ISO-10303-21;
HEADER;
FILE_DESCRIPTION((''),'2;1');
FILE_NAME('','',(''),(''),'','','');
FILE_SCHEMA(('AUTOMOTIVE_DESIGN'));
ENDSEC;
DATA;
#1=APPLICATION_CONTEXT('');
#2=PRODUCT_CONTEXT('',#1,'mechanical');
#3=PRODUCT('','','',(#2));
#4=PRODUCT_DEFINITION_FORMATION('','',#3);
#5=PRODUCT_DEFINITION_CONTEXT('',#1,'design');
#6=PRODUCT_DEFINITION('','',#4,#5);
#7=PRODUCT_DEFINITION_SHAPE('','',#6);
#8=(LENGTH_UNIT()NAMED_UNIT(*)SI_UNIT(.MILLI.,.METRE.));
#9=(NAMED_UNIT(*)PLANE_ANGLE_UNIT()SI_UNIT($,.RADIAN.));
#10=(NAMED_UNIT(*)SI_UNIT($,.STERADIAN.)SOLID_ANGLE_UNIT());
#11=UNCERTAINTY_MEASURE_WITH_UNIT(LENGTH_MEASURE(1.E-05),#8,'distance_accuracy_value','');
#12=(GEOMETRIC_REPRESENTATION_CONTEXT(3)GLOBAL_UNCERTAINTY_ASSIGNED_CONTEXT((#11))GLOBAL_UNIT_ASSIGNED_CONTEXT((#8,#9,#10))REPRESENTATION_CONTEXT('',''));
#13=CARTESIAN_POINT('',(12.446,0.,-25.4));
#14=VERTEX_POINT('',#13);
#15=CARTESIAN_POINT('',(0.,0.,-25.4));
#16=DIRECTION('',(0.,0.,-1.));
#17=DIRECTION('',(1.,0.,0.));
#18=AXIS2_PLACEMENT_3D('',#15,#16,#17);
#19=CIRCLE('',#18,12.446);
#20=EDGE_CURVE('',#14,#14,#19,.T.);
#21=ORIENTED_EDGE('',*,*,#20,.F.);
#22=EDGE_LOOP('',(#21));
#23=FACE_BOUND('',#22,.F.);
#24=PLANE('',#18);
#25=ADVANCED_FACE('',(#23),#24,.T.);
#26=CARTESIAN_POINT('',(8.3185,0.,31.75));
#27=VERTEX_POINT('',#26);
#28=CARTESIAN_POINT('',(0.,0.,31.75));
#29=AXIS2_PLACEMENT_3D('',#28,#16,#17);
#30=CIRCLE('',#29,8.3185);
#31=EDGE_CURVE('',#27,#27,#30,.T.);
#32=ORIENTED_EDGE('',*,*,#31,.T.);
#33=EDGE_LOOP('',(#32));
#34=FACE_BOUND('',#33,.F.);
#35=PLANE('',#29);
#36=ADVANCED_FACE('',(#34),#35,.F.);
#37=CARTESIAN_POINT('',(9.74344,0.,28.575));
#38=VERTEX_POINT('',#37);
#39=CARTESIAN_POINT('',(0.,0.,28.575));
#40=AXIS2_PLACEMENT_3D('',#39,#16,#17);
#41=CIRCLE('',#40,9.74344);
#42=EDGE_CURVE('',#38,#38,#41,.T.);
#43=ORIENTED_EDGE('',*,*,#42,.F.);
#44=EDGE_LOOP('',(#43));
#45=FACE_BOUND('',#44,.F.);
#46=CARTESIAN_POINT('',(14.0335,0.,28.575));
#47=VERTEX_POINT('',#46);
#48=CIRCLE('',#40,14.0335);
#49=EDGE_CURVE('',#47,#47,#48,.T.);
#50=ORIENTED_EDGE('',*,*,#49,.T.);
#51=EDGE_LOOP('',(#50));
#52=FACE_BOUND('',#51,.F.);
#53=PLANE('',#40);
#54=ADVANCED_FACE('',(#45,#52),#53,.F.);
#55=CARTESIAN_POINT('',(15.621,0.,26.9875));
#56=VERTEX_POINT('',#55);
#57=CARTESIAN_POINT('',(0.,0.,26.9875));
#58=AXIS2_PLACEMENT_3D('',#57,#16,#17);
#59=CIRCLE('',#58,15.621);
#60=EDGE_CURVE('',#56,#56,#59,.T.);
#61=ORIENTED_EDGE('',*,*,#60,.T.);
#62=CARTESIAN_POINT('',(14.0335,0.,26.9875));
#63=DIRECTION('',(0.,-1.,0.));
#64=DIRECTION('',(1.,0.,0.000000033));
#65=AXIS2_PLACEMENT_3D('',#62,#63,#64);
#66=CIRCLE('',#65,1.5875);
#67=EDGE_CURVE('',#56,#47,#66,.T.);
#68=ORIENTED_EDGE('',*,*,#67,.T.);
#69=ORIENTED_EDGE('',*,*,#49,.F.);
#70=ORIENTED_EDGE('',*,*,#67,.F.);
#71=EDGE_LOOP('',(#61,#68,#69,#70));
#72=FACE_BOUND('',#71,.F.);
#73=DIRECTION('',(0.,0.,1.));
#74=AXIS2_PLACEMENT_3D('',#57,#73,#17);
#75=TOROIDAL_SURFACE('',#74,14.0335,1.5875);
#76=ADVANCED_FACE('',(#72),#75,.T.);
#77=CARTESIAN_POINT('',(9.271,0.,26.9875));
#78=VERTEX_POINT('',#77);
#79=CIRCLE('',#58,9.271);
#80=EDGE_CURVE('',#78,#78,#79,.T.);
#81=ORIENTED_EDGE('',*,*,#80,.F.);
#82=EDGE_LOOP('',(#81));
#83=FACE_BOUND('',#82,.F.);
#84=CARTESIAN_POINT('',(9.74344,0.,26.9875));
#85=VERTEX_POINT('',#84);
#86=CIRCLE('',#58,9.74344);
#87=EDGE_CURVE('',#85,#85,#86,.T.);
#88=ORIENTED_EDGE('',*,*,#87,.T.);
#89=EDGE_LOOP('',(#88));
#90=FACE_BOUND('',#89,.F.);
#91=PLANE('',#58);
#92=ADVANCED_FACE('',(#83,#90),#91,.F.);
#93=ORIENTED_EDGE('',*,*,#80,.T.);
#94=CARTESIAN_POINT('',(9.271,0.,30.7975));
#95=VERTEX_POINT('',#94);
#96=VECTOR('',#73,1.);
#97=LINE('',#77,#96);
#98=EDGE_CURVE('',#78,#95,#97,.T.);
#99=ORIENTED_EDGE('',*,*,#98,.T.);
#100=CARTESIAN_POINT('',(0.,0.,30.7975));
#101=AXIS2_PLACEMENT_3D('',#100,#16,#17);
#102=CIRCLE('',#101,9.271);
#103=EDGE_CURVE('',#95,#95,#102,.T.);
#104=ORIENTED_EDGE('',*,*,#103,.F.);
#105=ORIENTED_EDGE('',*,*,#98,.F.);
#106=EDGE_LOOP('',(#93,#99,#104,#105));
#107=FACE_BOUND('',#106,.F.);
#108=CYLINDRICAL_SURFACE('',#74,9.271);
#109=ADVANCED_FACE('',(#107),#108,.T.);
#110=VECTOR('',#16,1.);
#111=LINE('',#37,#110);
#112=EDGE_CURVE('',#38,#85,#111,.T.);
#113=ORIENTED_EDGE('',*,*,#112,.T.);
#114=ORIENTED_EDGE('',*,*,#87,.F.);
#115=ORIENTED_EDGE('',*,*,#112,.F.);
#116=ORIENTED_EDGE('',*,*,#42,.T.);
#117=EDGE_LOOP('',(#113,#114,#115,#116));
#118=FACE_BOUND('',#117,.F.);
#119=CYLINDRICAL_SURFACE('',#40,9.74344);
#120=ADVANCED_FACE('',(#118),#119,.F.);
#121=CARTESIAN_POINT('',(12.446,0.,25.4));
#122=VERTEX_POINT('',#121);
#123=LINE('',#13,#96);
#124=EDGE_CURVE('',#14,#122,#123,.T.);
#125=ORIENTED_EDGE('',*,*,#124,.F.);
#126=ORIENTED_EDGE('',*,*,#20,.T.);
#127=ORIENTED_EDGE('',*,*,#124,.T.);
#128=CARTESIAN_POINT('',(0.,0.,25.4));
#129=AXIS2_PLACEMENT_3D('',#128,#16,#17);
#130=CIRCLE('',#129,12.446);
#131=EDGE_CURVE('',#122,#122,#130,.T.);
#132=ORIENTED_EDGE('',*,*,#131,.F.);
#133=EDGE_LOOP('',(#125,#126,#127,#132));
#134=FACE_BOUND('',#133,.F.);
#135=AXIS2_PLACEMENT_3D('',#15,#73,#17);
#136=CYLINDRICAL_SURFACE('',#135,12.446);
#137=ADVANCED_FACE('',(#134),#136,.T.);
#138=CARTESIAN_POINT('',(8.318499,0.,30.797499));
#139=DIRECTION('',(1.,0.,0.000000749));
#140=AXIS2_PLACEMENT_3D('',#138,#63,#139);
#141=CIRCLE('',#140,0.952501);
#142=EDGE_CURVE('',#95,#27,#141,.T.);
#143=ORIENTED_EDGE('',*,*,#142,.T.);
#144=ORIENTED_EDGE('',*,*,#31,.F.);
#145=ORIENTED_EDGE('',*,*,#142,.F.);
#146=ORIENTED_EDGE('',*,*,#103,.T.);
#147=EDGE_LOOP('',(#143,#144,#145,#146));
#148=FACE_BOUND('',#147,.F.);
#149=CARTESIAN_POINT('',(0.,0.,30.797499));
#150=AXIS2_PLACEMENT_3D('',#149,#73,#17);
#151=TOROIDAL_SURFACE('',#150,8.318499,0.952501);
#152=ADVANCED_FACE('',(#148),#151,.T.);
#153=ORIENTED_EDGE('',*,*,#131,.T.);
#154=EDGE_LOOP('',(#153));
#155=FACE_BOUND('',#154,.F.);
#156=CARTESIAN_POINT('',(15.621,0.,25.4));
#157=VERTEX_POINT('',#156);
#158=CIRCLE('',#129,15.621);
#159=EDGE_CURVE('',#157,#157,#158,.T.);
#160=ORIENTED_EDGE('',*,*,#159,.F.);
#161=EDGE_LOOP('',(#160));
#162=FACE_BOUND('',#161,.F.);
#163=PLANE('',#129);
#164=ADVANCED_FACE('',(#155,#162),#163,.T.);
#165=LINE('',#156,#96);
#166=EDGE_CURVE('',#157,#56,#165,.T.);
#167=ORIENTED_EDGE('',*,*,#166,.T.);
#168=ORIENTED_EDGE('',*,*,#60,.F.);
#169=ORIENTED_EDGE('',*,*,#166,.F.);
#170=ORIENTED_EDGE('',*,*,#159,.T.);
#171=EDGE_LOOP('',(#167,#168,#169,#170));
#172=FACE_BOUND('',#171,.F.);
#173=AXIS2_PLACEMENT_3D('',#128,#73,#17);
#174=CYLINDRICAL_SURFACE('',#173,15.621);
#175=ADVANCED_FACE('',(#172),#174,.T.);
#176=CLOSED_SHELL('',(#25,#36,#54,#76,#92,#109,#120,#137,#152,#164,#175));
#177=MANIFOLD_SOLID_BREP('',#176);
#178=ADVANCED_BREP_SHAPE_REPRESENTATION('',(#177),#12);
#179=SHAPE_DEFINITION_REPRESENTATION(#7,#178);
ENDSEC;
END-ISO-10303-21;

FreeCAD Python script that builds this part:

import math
import FreeCAD as App
import Part
import Sketcher
Q = App.Units.Quantity

doc = App.newDocument("Part")
body = doc.addObject("PartDesign::Body", "Body")

# Sketch on XZ plane
sketch1 = body.newObject("Sketcher::SketchObject", "Sketch")
sketch1.AttachmentSupport = (doc.getObject("XZ_Plane"), [""])
sketch1.MapMode = "FlatFace"
sketch1.addGeometry([
    Part.LineSegment(App.Vector(12.446, -25.4, 0), App.Vector(12.446, 25.4, 0)),  # 0
    Part.LineSegment(App.Vector(12.446, 25.4, 0), App.Vector(15.621, 25.4, 0)),  # 1
    Part.LineSegment(App.Vector(15.621, 25.4, 0), App.Vector(15.621, 26.9875, 0)),  # 2
    Part.ArcOfCircle(Part.Circle(App.Vector(14.0335, 26.9875, 0), App.Vector(0, 0, 1), 1.5875), math.radians(0.000002), math.radians(89.999998)),  # 3
    Part.LineSegment(App.Vector(14.0335, 28.575, 0), App.Vector(9.74344, 28.575, 0)),  # 4
    Part.LineSegment(App.Vector(9.74344, 28.575, 0), App.Vector(9.74344, 26.9875, 0)),  # 5
    Part.LineSegment(App.Vector(9.74344, 26.9875, 0), App.Vector(9.271, 26.9875, 0)),  # 6
    Part.LineSegment(App.Vector(9.271, 26.9875, 0), App.Vector(9.271, 30.7975, 0)),  # 7
    Part.ArcOfCircle(Part.Circle(App.Vector(8.318499, 30.797499, 0), App.Vector(0, 0, 1), 0.952501), math.radians(0.000043), math.radians(89.999957)),  # 8
    Part.LineSegment(App.Vector(8.3185, 31.75, 0), App.Vector(0, 31.75, 0)),  # 9
    Part.LineSegment(App.Vector(0, 31.75, 0), App.Vector(0, -25.4, 0)),  # 10
    Part.LineSegment(App.Vector(0, -25.4, 0), App.Vector(12.446, -25.4, 0)),  # 11
], False)
sketch1.addConstraint([
    Sketcher.Constraint("Coincident", 0, 2, 1, 1),
    Sketcher.Constraint("Coincident", 1, 2, 2, 1),
    Sketcher.Constraint("Tangent", 2, 2, 3, 1),
    Sketcher.Constraint("Tangent", 3, 2, 4, 1),
    Sketcher.Constraint("Coincident", 4, 2, 5, 1),
    Sketcher.Constraint("Coincident", 5, 2, 6, 1),
    Sketcher.Constraint("Coincident", 6, 2, 7, 1),
    Sketcher.Constraint("Tangent", 7, 2, 8, 1),
    Sketcher.Constraint("Tangent", 8, 2, 9, 1),
    Sketcher.Constraint("Coincident", 9, 2, 10, 1),
    Sketcher.Constraint("Coincident", 10, 2, 11, 1),
    Sketcher.Constraint("Coincident", 11, 2, 0, 1),
    Sketcher.Constraint("Vertical", 0),
    Sketcher.Constraint("Horizontal", 1),
    Sketcher.Constraint("Vertical", 2),
    Sketcher.Constraint("Horizontal", 4),
    Sketcher.Constraint("Vertical", 5),
    Sketcher.Constraint("Horizontal", 6),
    Sketcher.Constraint("Vertical", 7),
    Sketcher.Constraint("Horizontal", 9),
    Sketcher.Constraint("Vertical", 10),
    Sketcher.Constraint("Horizontal", 11),
    Sketcher.Constraint("PointOnObject", 9, 2, -2),
    Sketcher.Constraint("Horizontal", 2, 2, 5, 2),
    Sketcher.Constraint("Equal", 2, 5),
    Sketcher.Constraint("DistanceY", 0, 1, 0, 2, Q("2 in")),
    Sketcher.Constraint("DistanceY", -1, 1, 0, 2, Q("1 in")),
    Sketcher.Constraint("Radius", 3, Q("0.0625 in")),
    Sketcher.Constraint("DistanceX", 11, 1, 11, 2, Q("0.49 in")),
    Sketcher.Constraint("DistanceY", 7, 1, 7, 2, Q("0.15 in")),
    Sketcher.Constraint("DistanceY", 10, 2, 10, 1, Q("2.25 in")),
    Sketcher.Constraint("DistanceX", 1, 1, 1, 2, Q("0.125 in")),
    Sketcher.Constraint("DistanceX", 4, 2, 4, 1, Q("0.1689 in")),
    Sketcher.Constraint("DistanceX", 6, 2, 6, 1, Q("0.0186 in")),
])
revolution = body.newObject("PartDesign::Revolution", "Revolution")
revolution.Profile = sketch1
revolution.ReferenceAxis = (sketch1, ["V_Axis"])
revolution.Angle = 360

doc.recompute()
